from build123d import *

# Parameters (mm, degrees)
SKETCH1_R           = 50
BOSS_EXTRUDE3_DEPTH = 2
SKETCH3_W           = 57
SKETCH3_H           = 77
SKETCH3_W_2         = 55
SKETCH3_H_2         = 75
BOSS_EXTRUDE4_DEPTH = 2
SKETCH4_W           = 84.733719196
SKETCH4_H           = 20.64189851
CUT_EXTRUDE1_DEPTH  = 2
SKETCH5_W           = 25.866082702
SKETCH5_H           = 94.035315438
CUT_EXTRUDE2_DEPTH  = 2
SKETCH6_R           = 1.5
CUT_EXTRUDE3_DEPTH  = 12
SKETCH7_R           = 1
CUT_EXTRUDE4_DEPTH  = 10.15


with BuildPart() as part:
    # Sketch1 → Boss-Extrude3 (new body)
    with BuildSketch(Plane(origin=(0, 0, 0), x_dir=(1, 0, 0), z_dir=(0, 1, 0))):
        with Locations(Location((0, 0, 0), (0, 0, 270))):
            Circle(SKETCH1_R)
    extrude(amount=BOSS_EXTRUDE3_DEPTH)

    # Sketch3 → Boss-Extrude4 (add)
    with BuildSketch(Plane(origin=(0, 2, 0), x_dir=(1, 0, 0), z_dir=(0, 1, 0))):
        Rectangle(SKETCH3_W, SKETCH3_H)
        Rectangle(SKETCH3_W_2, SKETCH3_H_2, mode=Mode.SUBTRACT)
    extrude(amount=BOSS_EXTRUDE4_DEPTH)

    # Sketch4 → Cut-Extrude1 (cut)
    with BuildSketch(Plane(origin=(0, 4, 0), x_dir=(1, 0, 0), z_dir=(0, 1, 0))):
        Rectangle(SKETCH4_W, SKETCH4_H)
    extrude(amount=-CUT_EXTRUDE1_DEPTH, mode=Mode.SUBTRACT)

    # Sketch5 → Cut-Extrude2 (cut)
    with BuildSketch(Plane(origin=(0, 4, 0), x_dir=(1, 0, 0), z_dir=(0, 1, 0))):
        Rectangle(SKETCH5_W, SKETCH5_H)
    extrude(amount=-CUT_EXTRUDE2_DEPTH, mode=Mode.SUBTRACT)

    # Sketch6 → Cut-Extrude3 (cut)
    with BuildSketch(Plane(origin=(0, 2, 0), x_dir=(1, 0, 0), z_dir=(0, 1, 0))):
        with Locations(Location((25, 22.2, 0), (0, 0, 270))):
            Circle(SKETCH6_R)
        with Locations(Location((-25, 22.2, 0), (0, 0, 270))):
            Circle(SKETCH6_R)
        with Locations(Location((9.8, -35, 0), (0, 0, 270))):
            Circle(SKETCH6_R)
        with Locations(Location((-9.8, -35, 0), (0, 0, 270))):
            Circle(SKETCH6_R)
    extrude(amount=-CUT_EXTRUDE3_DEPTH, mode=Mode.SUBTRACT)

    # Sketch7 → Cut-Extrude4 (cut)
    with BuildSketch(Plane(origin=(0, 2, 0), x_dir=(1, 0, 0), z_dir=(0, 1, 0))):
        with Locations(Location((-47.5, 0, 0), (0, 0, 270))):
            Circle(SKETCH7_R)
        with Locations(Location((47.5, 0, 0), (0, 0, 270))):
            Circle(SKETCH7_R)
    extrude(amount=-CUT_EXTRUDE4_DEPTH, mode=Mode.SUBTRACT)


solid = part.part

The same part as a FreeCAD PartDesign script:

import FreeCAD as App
import Part
import Sketcher
from FreeCAD import Vector
Q = App.Units.Quantity


def add_polygon(sketch, points):
    """Adds a closed chain of lines whose ends are joined by coincident constraints."""
    first, n = sketch.GeometryCount, len(points)
    for a, b in zip(points, points[1:] + points[:1]):
        sketch.addGeometry(Part.LineSegment(App.Vector(*a, 0), App.Vector(*b, 0)), False)
    for i in range(n):
        sketch.addConstraint(Sketcher.Constraint("Coincident", first + i, 2, first + (i + 1) % n, 1))

doc = App.newDocument("Part")
params = doc.addObject("Spreadsheet::Sheet", "Params")
for row, (alias, value) in enumerate([
    ("sketch1_diameter", "100 mm"),
    ("pad1_length", "2 mm"),
    ("sketch2_width", "57 mm"),
    ("sketch2_width2", "55 mm"),
    ("sketch2_height", "77 mm"),
    ("sketch2_height2", "75 mm"),
    ("pad2_length", "2 mm"),
    ("pocket1_length", "2 mm"),
    ("pocket2_length", "2 mm"),
    ("sketch5_diameter", "3 mm"),
    ("pocket3_length", "12 mm"),
    ("sketch6_diameter", "2 mm"),
    ("pocket4_length", "10.15 mm"),
], start=1):
    params.set(f"A{row}", alias)
    params.set(f"B{row}", "=" + value)
    params.setAlias(f"B{row}", alias)

body = doc.addObject("PartDesign::Body", "Body")

# Sketch on XZ plane
sketch1 = body.newObject("Sketcher::SketchObject", "Sketch")
sketch1.AttachmentSupport = (doc.getObject("XZ_Plane"), [""])
sketch1.MapMode = "FlatFace"
sketch1.addGeometry(Part.Circle(Vector(0, 0, 0), Vector(0, 0, 1), 50), False)
sketch1.addConstraint(Sketcher.Constraint("Coincident", 0, 3, -1, 1))
sketch1.addConstraint(Sketcher.Constraint("Diameter", 0, Q("100 mm")))
sketch1.setExpression("Constraints[1]", "Params.sketch1_diameter")
pad1 = body.newObject("PartDesign::Pad", "Pad")
pad1.Profile = sketch1
pad1.setExpression("Length", "Params.pad1_length")
pad1.Reversed = True

# Sketch on XZ plane
sketch2 = body.newObject("Sketcher::SketchObject", "Sketch001")
sketch2.AttachmentSupport = (doc.getObject("XZ_Plane"), [""])
sketch2.MapMode = "FlatFace"
sketch2.AttachmentOffset = App.Placement(Vector(0, 0, -2), App.Rotation())
add_polygon(sketch2, [(-28.5, -38.5), (-28.5, 38.5), (28.5, 38.5), (28.5, -38.5)])  # lines 0-3
add_polygon(sketch2, [(27.5, 37.5), (-27.5, 37.5), (-27.5, -37.5), (27.5, -37.5)])  # lines 4-7
sketch2.addConstraint(Sketcher.Constraint("Vertical", 0))
sketch2.addConstraint(Sketcher.Constraint("Horizontal", 1))
sketch2.addConstraint(Sketcher.Constraint("Vertical", 2))
sketch2.addConstraint(Sketcher.Constraint("Horizontal", 3))
sketch2.addConstraint(Sketcher.Constraint("Horizontal", 4))
sketch2.addConstraint(Sketcher.Constraint("Vertical", 5))
sketch2.addConstraint(Sketcher.Constraint("Horizontal", 6))
sketch2.addConstraint(Sketcher.Constraint("Vertical", 7))
sketch2.addConstraint(Sketcher.Constraint("Symmetric", 0, 2, 2, 2, -1, 1))
sketch2.addConstraint(Sketcher.Constraint("Symmetric", 4, 2, 6, 2, -1, 1))
sketch2.addConstraint(Sketcher.Constraint("DistanceX", 1, 1, 1, 2, Q("57 mm")))
sketch2.addConstraint(Sketcher.Constraint("DistanceX", 4, 2, 4, 1, Q("55 mm")))
sketch2.addConstraint(Sketcher.Constraint("DistanceY", 0, 1, 0, 2, Q("77 mm")))
sketch2.addConstraint(Sketcher.Constraint("DistanceY", 5, 2, 5, 1, Q("75 mm")))
sketch2.setExpression("Constraints[18]", "Params.sketch2_width")
sketch2.setExpression("Constraints[19]", "Params.sketch2_width2")
sketch2.setExpression("Constraints[20]", "Params.sketch2_height")
sketch2.setExpression("Constraints[21]", "Params.sketch2_height2")
pad2 = body.newObject("PartDesign::Pad", "Pad001")
pad2.Profile = sketch2
pad2.setExpression("Length", "Params.pad2_length")
pad2.Reversed = True

# Sketch on XZ plane
sketch3 = body.newObject("Sketcher::SketchObject", "Sketch002")
sketch3.AttachmentSupport = (doc.getObject("XZ_Plane"), [""])
sketch3.MapMode = "FlatFace"
sketch3.AttachmentOffset = App.Placement(Vector(0, 0, -4), App.Rotation())
add_polygon(sketch3, [(-42.36686, -10.320949), (-42.36686, 10.320949), (42.36686, 10.320949), (42.36686, -10.320949)])  # lines 0-3
sketch3.addConstraint(Sketcher.Constraint("Vertical", 0))
sketch3.addConstraint(Sketcher.Constraint("Horizontal", 1))
sketch3.addConstraint(Sketcher.Constraint("Vertical", 2))
sketch3.addConstraint(Sketcher.Constraint("Horizontal", 3))
sketch3.addConstraint(Sketcher.Constraint("Symmetric", 0, 2, 2, 2, -1, 1))
sketch3.addConstraint(Sketcher.Constraint("DistanceY", 0, 1, 0, 2, Q("20.641899 mm")))
sketch3.addConstraint(Sketcher.Constraint("DistanceX", 1, 1, 1, 2, Q("84.733719 mm")))
pocket1 = body.newObject("PartDesign::Pocket", "Pocket")
pocket1.Profile = sketch3
pocket1.setExpression("Length", "Params.pocket1_length")
pocket1.Reversed = True

# Sketch on XZ plane
sketch4 = body.newObject("Sketcher::SketchObject", "Sketch003")
sketch4.AttachmentSupport = (doc.getObject("XZ_Plane"), [""])
sketch4.MapMode = "FlatFace"
sketch4.AttachmentOffset = App.Placement(Vector(0, 0, -4), App.Rotation())
add_polygon(sketch4, [(-12.933041, -47.017658), (-12.933041, 47.017658), (12.933041, 47.017658), (12.933041, -47.017658)])  # lines 0-3
sketch4.addConstraint(Sketcher.Constraint("Vertical", 0))
sketch4.addConstraint(Sketcher.Constraint("Horizontal", 1))
sketch4.addConstraint(Sketcher.Constraint("Vertical", 2))
sketch4.addConstraint(Sketcher.Constraint("Horizontal", 3))
sketch4.addConstraint(Sketcher.Constraint("Symmetric", 0, 2, 2, 2, -1, 1))
sketch4.addConstraint(Sketcher.Constraint("DistanceX", 1, 1, 1, 2, Q("25.866083 mm")))
sketch4.addConstraint(Sketcher.Constraint("DistanceY", 0, 1, 0, 2, Q("94.035315 mm")))
pocket2 = body.newObject("PartDesign::Pocket", "Pocket001")
pocket2.Profile = sketch4
pocket2.setExpression("Length", "Params.pocket2_length")
pocket2.Reversed = True

# Sketch on XZ plane
sketch5 = body.newObject("Sketcher::SketchObject", "Sketch004")
sketch5.AttachmentSupport = (doc.getObject("XZ_Plane"), [""])
sketch5.MapMode = "FlatFace"
sketch5.AttachmentOffset = App.Placement(Vector(0, 0, -2), App.Rotation())
sketch5.addGeometry(Part.Circle(Vector(25, -22.2, 0), Vector(0, 0, 1), 1.5), False)
sketch5.addGeometry(Part.Circle(Vector(-25, -22.2, 0), Vector(0, 0, 1), 1.5), False)
sketch5.addGeometry(Part.Circle(Vector(9.8, 35, 0), Vector(0, 0, 1), 1.5), False)
sketch5.addGeometry(Part.Circle(Vector(-9.8, 35, 0), Vector(0, 0, 1), 1.5), False)
sketch5.addConstraint(Sketcher.Constraint("Equal", 0, 1))
sketch5.addConstraint(Sketcher.Constraint("Equal", 1, 2))
sketch5.addConstraint(Sketcher.Constraint("Equal", 2, 3))
sketch5.addConstraint(Sketcher.Constraint("Symmetric", 0, 3, 1, 3, -2))
sketch5.addConstraint(Sketcher.Constraint("Symmetric", 2, 3, 3, 3, -2))
sketch5.addConstraint(Sketcher.Constraint("Diameter", 0, Q("3 mm")))
sketch5.addConstraint(Sketcher.Constraint("DistanceX", -1, 1, 0, 3, Q("25 mm")))
sketch5.addConstraint(Sketcher.Constraint("DistanceY", -1, 1, 2, 3, Q("35 mm")))
sketch5.addConstraint(Sketcher.Constraint("DistanceY", 0, 3, -1, 1, Q("22.2 mm")))
sketch5.addConstraint(Sketcher.Constraint("DistanceX", -1, 1, 2, 3, Q("9.8 mm")))
sketch5.setExpression("Constraints[5]", "Params.sketch5_diameter")
pocket3 = body.newObject("PartDesign::Pocket", "Pocket002")
pocket3.Profile = sketch5
pocket3.setExpression("Length", "Params.pocket3_length")
pocket3.Reversed = True

# Sketch on XZ plane
sketch6 = body.newObject("Sketcher::SketchObject", "Sketch005")
sketch6.AttachmentSupport = (doc.getObject("XZ_Plane"), [""])
sketch6.MapMode = "FlatFace"
sketch6.AttachmentOffset = App.Placement(Vector(0, 0, -2), App.Rotation())
sketch6.addGeometry(Part.Circle(Vector(-47.5, 0, 0), Vector(0, 0, 1), 1), False)
sketch6.addGeometry(Part.Circle(Vector(47.5, 0, 0), Vector(0, 0, 1), 1), False)
sketch6.addConstraint(Sketcher.Constraint("Equal", 0, 1))
sketch6.addConstraint(Sketcher.Constraint("Symmetric", 0, 3, 1, 3, -1, 1))
sketch6.addConstraint(Sketcher.Constraint("PointOnObject", 0, 3, -1))
sketch6.addConstraint(Sketcher.Constraint("Diameter", 0, Q("2 mm")))
sketch6.addConstraint(Sketcher.Constraint("DistanceX", 0, 3, 1, 3, Q("95 mm")))
sketch6.setExpression("Constraints[3]", "Params.sketch6_diameter")
pocket4 = body.newObject("PartDesign::Pocket", "Pocket003")
pocket4.Profile = sketch6
pocket4.setExpression("Length", "Params.pocket4_length")
pocket4.Reversed = True

doc.recompute()
